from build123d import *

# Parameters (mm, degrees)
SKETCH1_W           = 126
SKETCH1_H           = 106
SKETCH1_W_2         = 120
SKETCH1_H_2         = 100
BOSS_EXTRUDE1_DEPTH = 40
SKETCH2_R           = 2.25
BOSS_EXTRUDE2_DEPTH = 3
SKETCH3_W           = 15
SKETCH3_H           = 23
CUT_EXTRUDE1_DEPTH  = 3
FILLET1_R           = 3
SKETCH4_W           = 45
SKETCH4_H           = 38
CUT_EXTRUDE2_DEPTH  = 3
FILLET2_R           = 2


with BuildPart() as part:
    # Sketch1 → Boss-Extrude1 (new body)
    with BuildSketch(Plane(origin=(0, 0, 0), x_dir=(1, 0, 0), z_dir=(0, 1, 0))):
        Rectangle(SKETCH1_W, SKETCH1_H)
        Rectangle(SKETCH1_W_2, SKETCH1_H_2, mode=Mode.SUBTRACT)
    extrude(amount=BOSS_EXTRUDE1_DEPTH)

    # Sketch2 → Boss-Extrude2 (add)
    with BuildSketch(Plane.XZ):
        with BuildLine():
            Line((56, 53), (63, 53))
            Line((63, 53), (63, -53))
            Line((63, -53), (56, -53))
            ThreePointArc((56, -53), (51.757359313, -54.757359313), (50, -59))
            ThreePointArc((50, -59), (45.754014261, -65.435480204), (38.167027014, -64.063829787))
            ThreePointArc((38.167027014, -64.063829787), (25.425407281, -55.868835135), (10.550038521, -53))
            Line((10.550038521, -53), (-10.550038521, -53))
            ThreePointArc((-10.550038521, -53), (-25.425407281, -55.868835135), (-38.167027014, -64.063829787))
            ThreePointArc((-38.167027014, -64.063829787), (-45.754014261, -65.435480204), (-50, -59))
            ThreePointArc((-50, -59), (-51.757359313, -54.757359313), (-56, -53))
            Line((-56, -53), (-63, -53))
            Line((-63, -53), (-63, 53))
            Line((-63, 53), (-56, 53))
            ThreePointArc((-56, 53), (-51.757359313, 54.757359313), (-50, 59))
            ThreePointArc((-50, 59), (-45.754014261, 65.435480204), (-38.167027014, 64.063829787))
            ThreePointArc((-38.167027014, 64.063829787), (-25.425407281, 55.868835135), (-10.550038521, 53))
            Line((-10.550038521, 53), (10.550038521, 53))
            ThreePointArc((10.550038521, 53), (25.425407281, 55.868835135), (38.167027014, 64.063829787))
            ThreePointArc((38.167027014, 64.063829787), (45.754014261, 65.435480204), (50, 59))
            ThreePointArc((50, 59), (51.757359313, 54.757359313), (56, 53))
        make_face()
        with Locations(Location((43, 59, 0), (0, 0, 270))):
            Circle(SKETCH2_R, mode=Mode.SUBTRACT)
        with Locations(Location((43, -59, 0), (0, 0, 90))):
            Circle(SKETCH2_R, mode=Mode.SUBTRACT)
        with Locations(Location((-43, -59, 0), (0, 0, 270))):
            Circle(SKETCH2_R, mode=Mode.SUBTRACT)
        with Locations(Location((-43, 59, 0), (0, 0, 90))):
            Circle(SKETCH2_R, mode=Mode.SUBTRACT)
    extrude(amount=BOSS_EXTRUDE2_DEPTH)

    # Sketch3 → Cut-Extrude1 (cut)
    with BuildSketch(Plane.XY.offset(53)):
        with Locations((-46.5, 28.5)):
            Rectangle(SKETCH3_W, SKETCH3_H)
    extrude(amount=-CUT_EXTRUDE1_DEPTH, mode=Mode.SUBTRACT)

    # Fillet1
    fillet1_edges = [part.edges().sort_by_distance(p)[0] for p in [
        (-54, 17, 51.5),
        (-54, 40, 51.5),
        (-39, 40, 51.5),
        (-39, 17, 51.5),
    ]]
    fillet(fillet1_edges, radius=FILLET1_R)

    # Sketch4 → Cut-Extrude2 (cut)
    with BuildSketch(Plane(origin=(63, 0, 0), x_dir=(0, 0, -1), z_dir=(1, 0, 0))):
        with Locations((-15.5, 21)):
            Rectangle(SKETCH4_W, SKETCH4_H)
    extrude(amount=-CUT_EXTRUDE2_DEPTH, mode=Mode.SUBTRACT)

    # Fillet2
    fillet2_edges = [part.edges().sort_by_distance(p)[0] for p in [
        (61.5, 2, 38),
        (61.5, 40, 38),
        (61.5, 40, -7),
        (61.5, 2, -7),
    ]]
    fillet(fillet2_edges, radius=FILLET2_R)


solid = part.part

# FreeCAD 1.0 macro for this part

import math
import FreeCAD as App
import Part
import Sketcher
from FreeCAD import Vector
Q = App.Units.Quantity


def edges_at(feature, points):
    """Names of the edges that pass closest to the given points."""
    edges = feature.Shape.Edges
    near = lambda p: min(range(len(edges)), key=lambda i: edges[i].distToShape(Part.Vertex(*p))[0])
    return sorted({f"Edge{near(p) + 1}" for p in points})


def add_polygon(sketch, points):
    """Adds a closed chain of lines whose ends are joined by coincident constraints."""
    first, n = sketch.GeometryCount, len(points)
    for a, b in zip(points, points[1:] + points[:1]):
        sketch.addGeometry(Part.LineSegment(App.Vector(*a, 0), App.Vector(*b, 0)), False)
    for i in range(n):
        sketch.addConstraint(Sketcher.Constraint("Coincident", first + i, 2, first + (i + 1) % n, 1))

doc = App.newDocument("Part")
body = doc.addObject("PartDesign::Body", "Body")

sketch1 = doc.addObject("Sketcher::SketchObject", "Sketch")
body.addObject(sketch1)
sketch1.AttachmentSupport = (doc.XZ_Plane, [""])
sketch1.MapMode = "FlatFace"
add_polygon(sketch1, [(-63, -53), (-63, 53), (63, 53), (63, -53)])
add_polygon(sketch1, [(60, 50), (-60, 50), (-60, -50), (60, -50)])
sketch1.addConstraint([
    Sketcher.Constraint("Vertical", 0),
    Sketcher.Constraint("Horizontal", 1),
    Sketcher.Constraint("Vertical", 2),
    Sketcher.Constraint("Horizontal", 3),
    Sketcher.Constraint("Horizontal", 4),
    Sketcher.Constraint("Vertical", 5),
    Sketcher.Constraint("Horizontal", 6),
    Sketcher.Constraint("Vertical", 7),
    Sketcher.Constraint("Symmetric", 0, 2, 2, 2, -1, 1),
    Sketcher.Constraint("Symmetric", 4, 2, 6, 2, -1, 1),
    Sketcher.Constraint("DistanceX", 1, 1, 1, 2, Q("126 mm")),
    Sketcher.Constraint("DistanceX", 4, 2, 4, 1, Q("120 mm")),
    Sketcher.Constraint("DistanceY", 0, 1, 0, 2, Q("106 mm")),
    Sketcher.Constraint("DistanceY", 5, 2, 5, 1, Q("100 mm")),
])
pad1 = doc.addObject("PartDesign::Pad", "Pad")
body.addObject(pad1)
pad1.Profile = sketch1
pad1.Length = 40
pad1.Reversed = True

sketch2 = doc.addObject("Sketcher::SketchObject", "Sketch001")
body.addObject(sketch2)
sketch2.AttachmentSupport = (doc.XZ_Plane, [""])
sketch2.MapMode = "FlatFace"
sketch2.addGeometry([
    Part.LineSegment(Vector(63, 53, 0), Vector(56, 53, 0)),
    Part.ArcOfCircle(Part.Circle(Vector(56, 59, 0), Vector(0, 0, 1), 6), math.radians(180), math.radians(270)),
    Part.ArcOfCircle(Part.Circle(Vector(43, 59, 0), Vector(0, 0, 1), 7), math.radians(0), math.radians(134)),
    Part.ArcOfCircle(Part.Circle(Vector(10.6, 93, 0), Vector(0, 0, 1), 40), math.radians(-90), math.radians(-46)),
    Part.LineSegment(Vector(10.6, 53, 0), Vector(-10.6, 53, 0)),
    Part.ArcOfCircle(Part.Circle(Vector(-10.6, 93, 0), Vector(0, 0, 1), 40), math.radians(-134), math.radians(-90)),
    Part.ArcOfCircle(Part.Circle(Vector(-43, 59, 0), Vector(0, 0, 1), 7), math.radians(46), math.radians(180)),
    Part.ArcOfCircle(Part.Circle(Vector(-56, 59, 0), Vector(0, 0, 1), 6), math.radians(-90), math.radians(0)),
    Part.LineSegment(Vector(-56, 53, 0), Vector(-63, 53, 0)),
    Part.LineSegment(Vector(-63, 53, 0), Vector(-63, -53, 0)),
    Part.LineSegment(Vector(-63, -53, 0), Vector(-56, -53, 0)),
    Part.ArcOfCircle(Part.Circle(Vector(-56, -59, 0), Vector(0, 0, 1), 6), math.radians(0), math.radians(90)),
    Part.ArcOfCircle(Part.Circle(Vector(-43, -59, 0), Vector(0, 0, 1), 7), math.radians(180), math.radians(314)),
    Part.ArcOfCircle(Part.Circle(Vector(-10.6, -93, 0), Vector(0, 0, 1), 40), math.radians(90), math.radians(134)),
    Part.LineSegment(Vector(-10.6, -53, 0), Vector(10.6, -53, 0)),
    Part.ArcOfCircle(Part.Circle(Vector(10.6, -93, 0), Vector(0, 0, 1), 40), math.radians(46), math.radians(90)),
    Part.ArcOfCircle(Part.Circle(Vector(43, -59, 0), Vector(0, 0, 1), 7), math.radians(-134), math.radians(0)),
    Part.ArcOfCircle(Part.Circle(Vector(56, -59, 0), Vector(0, 0, 1), 6), math.radians(90), math.radians(180)),
    Part.LineSegment(Vector(56, -53, 0), Vector(63, -53, 0)),
    Part.LineSegment(Vector(63, -53, 0), Vector(63, 53, 0)),
    Part.Circle(Vector(43, -59, 0), Vector(0, 0, 1), 2.2),
    Part.Circle(Vector(-43, -59, 0), Vector(0, 0, 1), 2.2),
    Part.Circle(Vector(43, 59, 0), Vector(0, 0, 1), 2.2),
    Part.Circle(Vector(-43, 59, 0), Vector(0, 0, 1), 2.2),
], False)
sketch2.addConstraint([
    Sketcher.Constraint("Tangent", 0, 2, 1, 2),
    Sketcher.Constraint("Tangent", 1, 1, 2, 1),
    Sketcher.Constraint("Tangent", 2, 2, 3, 2),
    Sketcher.Constraint("Tangent", 3, 1, 4, 1),
    Sketcher.Constraint("Tangent", 4, 2, 5, 2),
    Sketcher.Constraint("Tangent", 5, 1, 6, 1),
    Sketcher.Constraint("Tangent", 6, 2, 7, 2),
    Sketcher.Constraint("Tangent", 7, 1, 8, 1),
    Sketcher.Constraint("Coincident", 8, 2, 9, 1),
    Sketcher.Constraint("Coincident", 9, 2, 10, 1),
    Sketcher.Constraint("Tangent", 10, 2, 11, 2),
    Sketcher.Constraint("Tangent", 11, 1, 12, 1),
    Sketcher.Constraint("Tangent", 12, 2, 13, 2),
    Sketcher.Constraint("Tangent", 13, 1, 14, 1),
    Sketcher.Constraint("Tangent", 14, 2, 15, 2),
    Sketcher.Constraint("Tangent", 15, 1, 16, 1),
    Sketcher.Constraint("Tangent", 16, 2, 17, 2),
    Sketcher.Constraint("Tangent", 17, 1, 18, 1),
    Sketcher.Constraint("Coincident", 18, 2, 19, 1),
    Sketcher.Constraint("Coincident", 19, 2, 0, 1),
    Sketcher.Constraint("Horizontal", 0),
    Sketcher.Constraint("Horizontal", 4),
    Sketcher.Constraint("Horizontal", 8),
    Sketcher.Constraint("Vertical", 9),
    Sketcher.Constraint("Horizontal", 10),
    Sketcher.Constraint("Horizontal", 14),
    Sketcher.Constraint("Horizontal", 18),
    Sketcher.Constraint("Vertical", 19),
    Sketcher.Constraint("Coincident", 20, 3, 16, 3),
    Sketcher.Constraint("Coincident", 21, 3, 12, 3),
    Sketcher.Constraint("Coincident", 22, 3, 2, 3),
    Sketcher.Constraint("Coincident", 23, 3, 6, 3),
    Sketcher.Constraint("Equal", 3, 5),
    Sketcher.Constraint("Equal", 2, 6),
    Sketcher.Constraint("Equal", 1, 7),
    Sketcher.Constraint("Equal", 7, 11),
    Sketcher.Constraint("Equal", 6, 12),
    Sketcher.Constraint("Equal", 5, 13),
    Sketcher.Constraint("Equal", 13, 15),
    Sketcher.Constraint("Equal", 12, 16),
    Sketcher.Constraint("Equal", 11, 17),
    Sketcher.Constraint("Equal", 20, 21),
    Sketcher.Constraint("Equal", 21, 22),
    Sketcher.Constraint("Equal", 22, 23),
    Sketcher.Constraint("Symmetric", 1, 3, 11, 3, -1, 1),
    Sketcher.Constraint("Symmetric", 3, 3, 13, 3, -1, 1),
    Sketcher.Constraint("Symmetric", 6, 3, 16, 3, -1, 1),
    Sketcher.Constraint("Symmetric", 8, 2, 18, 2, -1, 1),
    Sketcher.Constraint("Symmetric", 2, 3, 6, 3, -2),
    Sketcher.Constraint("Horizontal", 1, 3, 2, 3),
    Sketcher.Constraint("Horizontal", 6, 3, 7, 3),
    Sketcher.Constraint("Horizontal", 0, 2, 3, 1),
    Sketcher.Constraint("Radius", 1, Q("6 mm")),
    Sketcher.Constraint("Radius", 2, Q("7 mm")),
    Sketcher.Constraint("Radius", 3, Q("40 mm")),
    Sketcher.Constraint("Diameter", 20, Q("4.5 mm")),
    Sketcher.Constraint("DistanceX", 0, 2, 0, 1, Q("7 mm")),
    Sketcher.Constraint("DistanceY", 9, 2, 9, 1, Q("106 mm")),
    Sketcher.Constraint("DistanceX", -1, 1, 1, 3, Q("56 mm")),
])
pad2 = doc.addObject("PartDesign::Pad", "Pad001")
body.addObject(pad2)
pad2.Profile = sketch2
pad2.Length = 3

sketch3 = doc.addObject("Sketcher::SketchObject", "Sketch002")
body.addObject(sketch3)
sketch3.AttachmentSupport = (doc.XY_Plane, [""])
sketch3.MapMode = "FlatFace"
sketch3.AttachmentOffset = App.Placement(Vector(0, 0, 53), App.Rotation())
add_polygon(sketch3, [(-54, 40), (-54, 17), (-39, 17), (-39, 40)])
sketch3.addConstraint([
    Sketcher.Constraint("Vertical", 0),
    Sketcher.Constraint("Horizontal", 1),
    Sketcher.Constraint("Vertical", 2),
    Sketcher.Constraint("Horizontal", 3),
    Sketcher.Constraint("DistanceX", 1, 1, 1, 2, Q("15 mm")),
    Sketcher.Constraint("DistanceY", 0, 2, 0, 1, Q("23 mm")),
    Sketcher.Constraint("DistanceX", 0, 2, -1, 1, Q("54 mm")),
    Sketcher.Constraint("DistanceY", -1, 1, 0, 2, Q("17 mm")),
])
pocket1 = doc.addObject("PartDesign::Pocket", "Pocket")
body.addObject(pocket1)
pocket1.Profile = sketch3
pocket1.Length = 3
doc.recompute()

fillet = doc.addObject("PartDesign::Fillet", "Fillet")
body.addObject(fillet)
fillet.Base = (pocket1, edges_at(pocket1, [
    (-54, 17, 51.5),
    (-54, 40, 51.5),
    (-39, 40, 51.5),
    (-39, 17, 51.5),
]))
fillet.Radius = 3

sketch4 = doc.addObject("Sketcher::SketchObject", "Sketch003")
body.addObject(sketch4)
sketch4.AttachmentSupport = (doc.YZ_Plane, [""])
sketch4.MapMode = "FlatFace"
sketch4.AttachmentOffset = App.Placement(Vector(0, 0, 63), App.Rotation())
add_polygon(sketch4, [(40, 38), (2, 38), (2, -7), (40, -7)])
sketch4.addConstraint([
    Sketcher.Constraint("Horizontal", 0),
    Sketcher.Constraint("Vertical", 1),
    Sketcher.Constraint("Horizontal", 2),
    Sketcher.Constraint("Vertical", 3),
    Sketcher.Constraint("DistanceX", 0, 2, 0, 1, Q("38 mm")),
    Sketcher.Constraint("DistanceY", 1, 2, 1, 1, Q("45 mm")),
    Sketcher.Constraint("DistanceX", -1, 1, 0, 2, Q("2 mm")),
    Sketcher.Constraint("DistanceY", -1, 1, 0, 2, Q("38 mm")),
])
pocket2 = doc.addObject("PartDesign::Pocket", "Pocket001")
body.addObject(pocket2)
pocket2.Profile = sketch4
pocket2.Length = 3
doc.recompute()

fillet2 = doc.addObject("PartDesign::Fillet", "Fillet001")
body.addObject(fillet2)
fillet2.Base = (pocket2, edges_at(pocket2, [
    (61.5, 2, 38),
    (61.5, 40, 38),
    (61.5, 40, -7),
    (61.5, 2, -7),
]))
fillet2.Radius = 2

doc.recompute()
